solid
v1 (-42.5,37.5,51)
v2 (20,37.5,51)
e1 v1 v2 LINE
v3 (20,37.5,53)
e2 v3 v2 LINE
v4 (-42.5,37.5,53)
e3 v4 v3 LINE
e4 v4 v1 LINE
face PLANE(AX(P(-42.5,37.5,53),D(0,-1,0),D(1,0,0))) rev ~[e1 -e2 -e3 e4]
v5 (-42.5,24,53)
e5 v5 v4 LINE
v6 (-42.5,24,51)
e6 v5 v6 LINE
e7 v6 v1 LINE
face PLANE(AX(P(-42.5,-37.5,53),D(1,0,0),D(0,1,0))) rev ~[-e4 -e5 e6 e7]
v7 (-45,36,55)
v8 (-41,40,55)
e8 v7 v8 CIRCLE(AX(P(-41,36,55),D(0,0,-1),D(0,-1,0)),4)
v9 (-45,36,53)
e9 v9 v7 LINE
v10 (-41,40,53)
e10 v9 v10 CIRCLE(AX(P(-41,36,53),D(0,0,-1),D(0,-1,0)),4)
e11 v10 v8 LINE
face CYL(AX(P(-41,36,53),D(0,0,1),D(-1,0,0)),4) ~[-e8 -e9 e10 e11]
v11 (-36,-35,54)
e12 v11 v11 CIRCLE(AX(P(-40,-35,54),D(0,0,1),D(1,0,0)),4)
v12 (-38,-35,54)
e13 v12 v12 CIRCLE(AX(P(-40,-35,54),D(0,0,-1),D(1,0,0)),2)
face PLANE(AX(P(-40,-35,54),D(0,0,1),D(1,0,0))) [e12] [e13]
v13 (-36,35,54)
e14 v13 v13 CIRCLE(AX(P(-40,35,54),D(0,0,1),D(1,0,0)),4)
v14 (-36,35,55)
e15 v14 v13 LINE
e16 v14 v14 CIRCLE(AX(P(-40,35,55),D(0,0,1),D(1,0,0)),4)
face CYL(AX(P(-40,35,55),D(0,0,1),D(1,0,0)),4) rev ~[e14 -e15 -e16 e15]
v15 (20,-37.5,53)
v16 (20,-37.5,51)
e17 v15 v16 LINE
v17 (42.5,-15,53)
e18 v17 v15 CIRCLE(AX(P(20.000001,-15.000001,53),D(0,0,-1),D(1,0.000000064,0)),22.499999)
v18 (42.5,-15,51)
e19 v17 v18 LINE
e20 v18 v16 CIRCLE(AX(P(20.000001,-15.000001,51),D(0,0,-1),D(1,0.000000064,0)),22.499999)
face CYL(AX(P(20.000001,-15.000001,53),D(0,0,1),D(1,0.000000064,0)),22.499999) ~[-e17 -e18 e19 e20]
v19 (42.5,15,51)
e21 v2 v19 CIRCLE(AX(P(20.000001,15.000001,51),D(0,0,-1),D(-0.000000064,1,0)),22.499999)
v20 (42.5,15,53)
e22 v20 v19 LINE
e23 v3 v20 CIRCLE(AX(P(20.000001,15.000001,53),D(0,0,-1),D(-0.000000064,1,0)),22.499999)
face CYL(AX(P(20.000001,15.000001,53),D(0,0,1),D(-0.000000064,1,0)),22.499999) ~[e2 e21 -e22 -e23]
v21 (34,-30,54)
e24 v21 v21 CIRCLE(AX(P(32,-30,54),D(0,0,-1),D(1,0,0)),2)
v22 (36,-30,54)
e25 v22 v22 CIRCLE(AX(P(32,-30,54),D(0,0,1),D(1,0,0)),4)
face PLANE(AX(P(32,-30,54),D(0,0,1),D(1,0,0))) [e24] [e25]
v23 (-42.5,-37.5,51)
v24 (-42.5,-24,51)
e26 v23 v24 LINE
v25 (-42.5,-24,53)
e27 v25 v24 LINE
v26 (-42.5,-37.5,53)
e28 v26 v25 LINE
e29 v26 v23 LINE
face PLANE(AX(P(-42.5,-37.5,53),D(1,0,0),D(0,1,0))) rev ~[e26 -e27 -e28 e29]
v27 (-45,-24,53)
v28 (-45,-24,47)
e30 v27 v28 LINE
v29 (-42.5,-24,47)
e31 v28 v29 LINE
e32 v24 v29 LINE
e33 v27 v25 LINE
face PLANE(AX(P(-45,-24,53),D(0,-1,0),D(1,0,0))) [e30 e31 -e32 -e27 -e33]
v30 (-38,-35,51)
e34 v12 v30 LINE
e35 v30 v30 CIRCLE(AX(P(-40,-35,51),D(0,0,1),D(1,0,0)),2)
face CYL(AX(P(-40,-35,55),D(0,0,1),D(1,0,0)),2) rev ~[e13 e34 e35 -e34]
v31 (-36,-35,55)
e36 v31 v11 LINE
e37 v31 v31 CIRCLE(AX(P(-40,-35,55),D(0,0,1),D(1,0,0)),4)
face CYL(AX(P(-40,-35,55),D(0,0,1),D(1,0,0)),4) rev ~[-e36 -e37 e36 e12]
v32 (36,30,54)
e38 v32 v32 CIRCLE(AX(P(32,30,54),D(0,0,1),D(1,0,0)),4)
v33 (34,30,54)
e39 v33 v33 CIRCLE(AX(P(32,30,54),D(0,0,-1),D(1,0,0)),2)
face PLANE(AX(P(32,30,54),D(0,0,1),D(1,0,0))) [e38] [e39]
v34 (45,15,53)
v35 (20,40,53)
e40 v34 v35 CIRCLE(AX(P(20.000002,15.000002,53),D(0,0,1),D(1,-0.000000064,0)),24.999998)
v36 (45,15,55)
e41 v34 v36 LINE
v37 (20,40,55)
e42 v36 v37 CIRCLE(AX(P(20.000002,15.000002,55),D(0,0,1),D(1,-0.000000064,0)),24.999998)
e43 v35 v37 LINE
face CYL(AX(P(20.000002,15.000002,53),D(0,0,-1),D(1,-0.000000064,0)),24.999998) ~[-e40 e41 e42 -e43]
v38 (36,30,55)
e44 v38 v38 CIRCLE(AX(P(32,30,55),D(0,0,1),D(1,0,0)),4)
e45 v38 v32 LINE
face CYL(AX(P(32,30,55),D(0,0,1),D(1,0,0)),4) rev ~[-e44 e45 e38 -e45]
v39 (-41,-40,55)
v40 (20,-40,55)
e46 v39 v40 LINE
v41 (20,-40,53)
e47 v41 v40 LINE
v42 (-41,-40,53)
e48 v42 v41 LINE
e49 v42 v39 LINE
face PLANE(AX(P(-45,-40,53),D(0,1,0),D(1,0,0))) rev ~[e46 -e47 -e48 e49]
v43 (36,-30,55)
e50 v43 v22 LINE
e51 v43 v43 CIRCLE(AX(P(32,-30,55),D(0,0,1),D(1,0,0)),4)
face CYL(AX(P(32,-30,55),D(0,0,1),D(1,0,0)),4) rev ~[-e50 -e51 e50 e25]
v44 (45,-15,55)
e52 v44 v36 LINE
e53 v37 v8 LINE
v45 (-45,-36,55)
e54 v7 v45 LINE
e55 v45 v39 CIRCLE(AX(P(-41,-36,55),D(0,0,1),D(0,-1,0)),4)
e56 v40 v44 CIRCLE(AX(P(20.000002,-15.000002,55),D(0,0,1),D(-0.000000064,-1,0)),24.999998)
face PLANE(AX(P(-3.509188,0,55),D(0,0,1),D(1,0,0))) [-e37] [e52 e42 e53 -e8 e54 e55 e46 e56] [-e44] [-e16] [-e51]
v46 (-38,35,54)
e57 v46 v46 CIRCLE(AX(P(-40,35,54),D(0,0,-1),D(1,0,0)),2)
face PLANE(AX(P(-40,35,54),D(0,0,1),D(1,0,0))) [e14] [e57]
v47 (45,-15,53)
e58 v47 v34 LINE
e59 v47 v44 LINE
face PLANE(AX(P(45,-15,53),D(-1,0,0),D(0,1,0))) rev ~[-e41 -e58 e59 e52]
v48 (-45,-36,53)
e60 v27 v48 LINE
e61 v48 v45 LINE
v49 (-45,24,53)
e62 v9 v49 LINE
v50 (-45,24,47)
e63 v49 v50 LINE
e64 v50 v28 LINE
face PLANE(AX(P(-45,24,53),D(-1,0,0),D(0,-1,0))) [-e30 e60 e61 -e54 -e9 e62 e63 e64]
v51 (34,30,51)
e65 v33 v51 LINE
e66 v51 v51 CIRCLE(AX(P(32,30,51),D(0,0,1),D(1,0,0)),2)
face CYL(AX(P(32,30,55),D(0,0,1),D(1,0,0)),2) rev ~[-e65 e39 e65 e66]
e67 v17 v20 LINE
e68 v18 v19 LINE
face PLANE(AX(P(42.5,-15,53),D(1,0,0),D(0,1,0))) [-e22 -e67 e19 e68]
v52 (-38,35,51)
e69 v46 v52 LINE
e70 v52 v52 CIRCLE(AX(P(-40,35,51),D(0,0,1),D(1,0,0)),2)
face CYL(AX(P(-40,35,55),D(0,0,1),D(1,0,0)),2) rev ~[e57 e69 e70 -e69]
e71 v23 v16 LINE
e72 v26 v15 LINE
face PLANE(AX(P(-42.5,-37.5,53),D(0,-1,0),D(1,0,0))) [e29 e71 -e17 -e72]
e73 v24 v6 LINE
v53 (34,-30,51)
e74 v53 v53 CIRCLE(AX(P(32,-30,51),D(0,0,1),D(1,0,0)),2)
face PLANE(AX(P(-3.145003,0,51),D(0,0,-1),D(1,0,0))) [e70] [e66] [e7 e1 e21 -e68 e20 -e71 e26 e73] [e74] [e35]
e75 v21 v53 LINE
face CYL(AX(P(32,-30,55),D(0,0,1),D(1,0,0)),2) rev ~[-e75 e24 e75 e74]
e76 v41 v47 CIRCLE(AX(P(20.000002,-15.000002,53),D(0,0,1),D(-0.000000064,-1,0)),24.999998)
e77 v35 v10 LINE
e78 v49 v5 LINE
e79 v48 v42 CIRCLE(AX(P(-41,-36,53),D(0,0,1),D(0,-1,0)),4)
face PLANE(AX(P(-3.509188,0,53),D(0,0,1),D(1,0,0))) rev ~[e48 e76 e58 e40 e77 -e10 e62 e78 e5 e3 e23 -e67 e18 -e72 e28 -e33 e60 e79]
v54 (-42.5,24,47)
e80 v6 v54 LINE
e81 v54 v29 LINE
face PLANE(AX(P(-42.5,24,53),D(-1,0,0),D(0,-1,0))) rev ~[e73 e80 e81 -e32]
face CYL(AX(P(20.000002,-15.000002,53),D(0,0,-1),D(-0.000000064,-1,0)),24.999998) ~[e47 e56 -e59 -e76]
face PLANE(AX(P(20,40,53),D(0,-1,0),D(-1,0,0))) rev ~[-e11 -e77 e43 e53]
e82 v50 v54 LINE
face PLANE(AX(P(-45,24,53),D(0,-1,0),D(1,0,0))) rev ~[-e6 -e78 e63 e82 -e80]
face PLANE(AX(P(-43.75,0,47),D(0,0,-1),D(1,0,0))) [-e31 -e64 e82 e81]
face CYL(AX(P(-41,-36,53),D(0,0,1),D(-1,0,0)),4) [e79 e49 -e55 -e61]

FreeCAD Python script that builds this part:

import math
import FreeCAD as App
import Part
import Sketcher
Q = App.Units.Quantity


def edges_at(feature, points):
    """Names of the edges that pass closest to the given points."""
    edges = feature.Shape.Edges
    near = lambda p: min(range(len(edges)), key=lambda i: edges[i].distToShape(Part.Vertex(*p))[0])
    return sorted({f"Edge{near(p) + 1}" for p in points})


def add_polygon(sketch, points):
    """Adds a closed chain of lines whose ends are joined by coincident constraints."""
    first, n = sketch.GeometryCount, len(points)
    for a, b in zip(points, points[1:] + points[:1]):
        sketch.addGeometry(Part.LineSegment(App.Vector(*a, 0), App.Vector(*b, 0)), False)
    for i in range(n):
        sketch.addConstraint(Sketcher.Constraint("Coincident", first + i, 2, first + (i + 1) % n, 1))

doc = App.newDocument("Part")
body = doc.addObject("PartDesign::Body", "Body")

sketch1 = body.newObject("Sketcher::SketchObject", "Sketch")
sketch1.AttachmentSupport = (doc.getObject("XY_Plane"), [""])
sketch1.MapMode = "FlatFace"
sketch1.AttachmentOffset = App.Placement(App.Vector(0, 0, 53), App.Rotation())
sketch1.addGeometry([
    Part.LineSegment(App.Vector(20, 40, 0), App.Vector(-45, 40, 0)),
    Part.LineSegment(App.Vector(-45, 40, 0), App.Vector(-45, -40, 0)),
    Part.LineSegment(App.Vector(-45, -40, 0), App.Vector(20, -40, 0)),
    Part.ArcOfCircle(Part.Circle(App.Vector(20, -15, 0), App.Vector(0, 0, 1), 25), math.radians(-90), math.radians(0)),
    Part.LineSegment(App.Vector(45, -15, 0), App.Vector(45, 15, 0)),
    Part.ArcOfCircle(Part.Circle(App.Vector(20, 15, 0), App.Vector(0, 0, 1), 25), math.radians(0), math.radians(90)),
    Part.Circle(App.Vector(-40, -35, 0), App.Vector(0, 0, 1), 2),
    Part.Circle(App.Vector(32, -30, 0), App.Vector(0, 0, 1), 2),
    Part.Circle(App.Vector(-40, 35, 0), App.Vector(0, 0, 1), 2),
    Part.Circle(App.Vector(32, 30, 0), App.Vector(0, 0, 1), 2),
], False)
sketch1.addConstraint([
    Sketcher.Constraint("Coincident", 0, 2, 1, 1),
    Sketcher.Constraint("Coincident", 1, 2, 2, 1),
    Sketcher.Constraint("Tangent", 2, 2, 3, 1),
    Sketcher.Constraint("Tangent", 3, 2, 4, 1),
    Sketcher.Constraint("Tangent", 4, 2, 5, 1),
    Sketcher.Constraint("Tangent", 5, 2, 0, 1),
    Sketcher.Constraint("Horizontal", 0),
    Sketcher.Constraint("Vertical", 1),
    Sketcher.Constraint("Horizontal", 2),
    Sketcher.Constraint("Vertical", 4),
    Sketcher.Constraint("Equal", 3, 5),
    Sketcher.Constraint("Equal", 6, 7),
    Sketcher.Constraint("Equal", 7, 8),
    Sketcher.Constraint("Equal", 8, 9),
    Sketcher.Constraint("Symmetric", 6, 3, 8, 3, -1),
    Sketcher.Constraint("Symmetric", 7, 3, 9, 3, -1),
    Sketcher.Constraint("Diameter", 6, Q("4 mm")),
    Sketcher.Constraint("Radius", 3, Q("24.999998 mm")),
    Sketcher.Constraint("DistanceX", 0, 2, 0, 1, Q("65 mm")),
    Sketcher.Constraint("DistanceY", 1, 2, 1, 1, Q("80 mm")),
    Sketcher.Constraint("DistanceX", -1, 1, 3, 3, Q("20.000002 mm")),
    Sketcher.Constraint("DistanceY", 3, 3, -1, 1, Q("15.000002 mm")),
    Sketcher.Constraint("DistanceX", 6, 3, -1, 1, Q("40 mm")),
    Sketcher.Constraint("DistanceY", 6, 3, -1, 1, Q("35 mm")),
    Sketcher.Constraint("DistanceX", -1, 1, 7, 3, Q("32 mm")),
    Sketcher.Constraint("DistanceY", 7, 3, -1, 1, Q("30 mm")),
])
pad1 = body.newObject("PartDesign::Pad", "Pad")
pad1.Profile = sketch1
pad1.Length = 2

sketch2 = body.newObject("Sketcher::SketchObject", "Sketch001")
sketch2.AttachmentSupport = (doc.getObject("XY_Plane"), [""])
sketch2.MapMode = "FlatFace"
sketch2.AttachmentOffset = App.Placement(App.Vector(0, 0, 53), App.Rotation())
sketch2.addGeometry([
    Part.LineSegment(App.Vector(-42, -38, 0), App.Vector(-42, 38, 0)),
    Part.LineSegment(App.Vector(-42, 38, 0), App.Vector(20, 38, 0)),
    Part.ArcOfCircle(Part.Circle(App.Vector(20, 15, 0), App.Vector(0, 0, 1), 22), math.radians(0), math.radians(90)),
    Part.LineSegment(App.Vector(42, 15, 0), App.Vector(42, -15, 0)),
    Part.ArcOfCircle(Part.Circle(App.Vector(20, -15, 0), App.Vector(0, 0, 1), 22), math.radians(-90), math.radians(0)),
    Part.LineSegment(App.Vector(20, -38, 0), App.Vector(-42, -38, 0)),
], False)
sketch2.addConstraint([
    Sketcher.Constraint("Coincident", 0, 2, 1, 1),
    Sketcher.Constraint("Tangent", 1, 2, 2, 2),
    Sketcher.Constraint("Tangent", 2, 1, 3, 1),
    Sketcher.Constraint("Tangent", 3, 2, 4, 2),
    Sketcher.Constraint("Tangent", 4, 1, 5, 1),
    Sketcher.Constraint("Coincident", 5, 2, 0, 1),
    Sketcher.Constraint("Vertical", 0),
    Sketcher.Constraint("Horizontal", 1),
    Sketcher.Constraint("Vertical", 3),
    Sketcher.Constraint("Horizontal", 5),
    Sketcher.Constraint("Equal", 2, 4),
    Sketcher.Constraint("Radius", 2, Q("22.499999 mm")),
    Sketcher.Constraint("DistanceY", 0, 1, 0, 2, Q("75 mm")),
    Sketcher.Constraint("DistanceX", 1, 1, 1, 2, Q("62.5 mm")),
    Sketcher.Constraint("DistanceX", -1, 1, 2, 3, Q("20.000001 mm")),
    Sketcher.Constraint("DistanceY", -1, 1, 2, 3, Q("15.000001 mm")),
])
pad2 = body.newObject("PartDesign::Pad", "Pad001")
pad2.Profile = sketch2
pad2.Length = 2
pad2.Reversed = True

sketch3 = body.newObject("Sketcher::SketchObject", "Sketch002")
sketch3.AttachmentSupport = (doc.getObject("XY_Plane"), [""])
sketch3.MapMode = "FlatFace"
sketch3.AttachmentOffset = App.Placement(App.Vector(0, 0, 53), App.Rotation())
add_polygon(sketch3, [(-45, -24), (-45, 24), (-42.5, 24), (-42.5, -24)])
sketch3.addConstraint([
    Sketcher.Constraint("Vertical", 0),
    Sketcher.Constraint("Horizontal", 1),
    Sketcher.Constraint("Vertical", 2),
    Sketcher.Constraint("Horizontal", 3),
    Sketcher.Constraint("DistanceY", 0, 1, 0, 2, Q("48 mm")),
    Sketcher.Constraint("DistanceX", 1, 1, 1, 2, Q("2.5 mm")),
    Sketcher.Constraint("DistanceX", 0, 2, -1, 1, Q("45 mm")),
    Sketcher.Constraint("DistanceY", -1, 1, 0, 2, Q("24 mm")),
])
pad3 = body.newObject("PartDesign::Pad", "Pad002")
pad3.Profile = sketch3
pad3.Length = 6
pad3.Reversed = True

sketch4 = body.newObject("Sketcher::SketchObject", "Sketch003")
sketch4.AttachmentSupport = (doc.getObject("XY_Plane"), [""])
sketch4.MapMode = "FlatFace"
sketch4.AttachmentOffset = App.Placement(App.Vector(0, 0, 55), App.Rotation())
sketch4.addGeometry([
    Part.Circle(App.Vector(-40, 35, 0), App.Vector(0, 0, 1), 2),
    Part.Circle(App.Vector(-40, -35, 0), App.Vector(0, 0, 1), 2),
    Part.Circle(App.Vector(32, -30, 0), App.Vector(0, 0, 1), 2),
    Part.Circle(App.Vector(32, 30, 0), App.Vector(0, 0, 1), 2),
], False)
sketch4.addConstraint([
    Sketcher.Constraint("Equal", 0, 1),
    Sketcher.Constraint("Equal", 1, 2),
    Sketcher.Constraint("Equal", 2, 3),
    Sketcher.Constraint("Symmetric", 0, 3, 1, 3, -1),
    Sketcher.Constraint("Symmetric", 2, 3, 3, 3, -1),
    Sketcher.Constraint("Diameter", 0, Q("4 mm")),
    Sketcher.Constraint("DistanceX", 0, 3, -1, 1, Q("40 mm")),
    Sketcher.Constraint("DistanceY", -1, 1, 0, 3, Q("35 mm")),
    Sketcher.Constraint("DistanceX", -1, 1, 2, 3, Q("32 mm")),
    Sketcher.Constraint("DistanceY", 2, 3, -1, 1, Q("30 mm")),
])
pocket1 = body.newObject("PartDesign::Pocket", "Pocket")
pocket1.Profile = sketch4
pocket1.Type = "ThroughAll"

sketch5 = body.newObject("Sketcher::SketchObject", "Sketch004")
sketch5.AttachmentSupport = (doc.getObject("XY_Plane"), [""])
sketch5.MapMode = "FlatFace"
sketch5.AttachmentOffset = App.Placement(App.Vector(0, 0, 55), App.Rotation())
sketch5.addGeometry([
    Part.Circle(App.Vector(32, 30, 0), App.Vector(0, 0, 1), 4),
    Part.Circle(App.Vector(-40, 35, 0), App.Vector(0, 0, 1), 4),
    Part.Circle(App.Vector(32, -30, 0), App.Vector(0, 0, 1), 4),
    Part.Circle(App.Vector(-40, -35, 0), App.Vector(0, 0, 1), 4),
], False)
sketch5.addConstraint([
    Sketcher.Constraint("Equal", 0, 1),
    Sketcher.Constraint("Equal", 1, 2),
    Sketcher.Constraint("Equal", 2, 3),
    Sketcher.Constraint("Symmetric", 0, 3, 2, 3, -1),
    Sketcher.Constraint("Symmetric", 1, 3, 3, 3, -1),
    Sketcher.Constraint("Diameter", 0, Q("8 mm")),
    Sketcher.Constraint("DistanceX", -1, 1, 0, 3, Q("32 mm")),
    Sketcher.Constraint("DistanceY", -1, 1, 0, 3, Q("30 mm")),
    Sketcher.Constraint("DistanceX", 1, 3, -1, 1, Q("40 mm")),
    Sketcher.Constraint("DistanceY", -1, 1, 1, 3, Q("35 mm")),
])
pocket2 = body.newObject("PartDesign::Pocket", "Pocket001")
pocket2.Profile = sketch5
pocket2.Length = 1
doc.recompute()

fillet = body.newObject("PartDesign::Fillet", "Fillet")
fillet.Base = (pocket2, edges_at(pocket2, [(-45, 40, 54), (-45, -40, 54)]))
fillet.Radius = 4

doc.recompute()
